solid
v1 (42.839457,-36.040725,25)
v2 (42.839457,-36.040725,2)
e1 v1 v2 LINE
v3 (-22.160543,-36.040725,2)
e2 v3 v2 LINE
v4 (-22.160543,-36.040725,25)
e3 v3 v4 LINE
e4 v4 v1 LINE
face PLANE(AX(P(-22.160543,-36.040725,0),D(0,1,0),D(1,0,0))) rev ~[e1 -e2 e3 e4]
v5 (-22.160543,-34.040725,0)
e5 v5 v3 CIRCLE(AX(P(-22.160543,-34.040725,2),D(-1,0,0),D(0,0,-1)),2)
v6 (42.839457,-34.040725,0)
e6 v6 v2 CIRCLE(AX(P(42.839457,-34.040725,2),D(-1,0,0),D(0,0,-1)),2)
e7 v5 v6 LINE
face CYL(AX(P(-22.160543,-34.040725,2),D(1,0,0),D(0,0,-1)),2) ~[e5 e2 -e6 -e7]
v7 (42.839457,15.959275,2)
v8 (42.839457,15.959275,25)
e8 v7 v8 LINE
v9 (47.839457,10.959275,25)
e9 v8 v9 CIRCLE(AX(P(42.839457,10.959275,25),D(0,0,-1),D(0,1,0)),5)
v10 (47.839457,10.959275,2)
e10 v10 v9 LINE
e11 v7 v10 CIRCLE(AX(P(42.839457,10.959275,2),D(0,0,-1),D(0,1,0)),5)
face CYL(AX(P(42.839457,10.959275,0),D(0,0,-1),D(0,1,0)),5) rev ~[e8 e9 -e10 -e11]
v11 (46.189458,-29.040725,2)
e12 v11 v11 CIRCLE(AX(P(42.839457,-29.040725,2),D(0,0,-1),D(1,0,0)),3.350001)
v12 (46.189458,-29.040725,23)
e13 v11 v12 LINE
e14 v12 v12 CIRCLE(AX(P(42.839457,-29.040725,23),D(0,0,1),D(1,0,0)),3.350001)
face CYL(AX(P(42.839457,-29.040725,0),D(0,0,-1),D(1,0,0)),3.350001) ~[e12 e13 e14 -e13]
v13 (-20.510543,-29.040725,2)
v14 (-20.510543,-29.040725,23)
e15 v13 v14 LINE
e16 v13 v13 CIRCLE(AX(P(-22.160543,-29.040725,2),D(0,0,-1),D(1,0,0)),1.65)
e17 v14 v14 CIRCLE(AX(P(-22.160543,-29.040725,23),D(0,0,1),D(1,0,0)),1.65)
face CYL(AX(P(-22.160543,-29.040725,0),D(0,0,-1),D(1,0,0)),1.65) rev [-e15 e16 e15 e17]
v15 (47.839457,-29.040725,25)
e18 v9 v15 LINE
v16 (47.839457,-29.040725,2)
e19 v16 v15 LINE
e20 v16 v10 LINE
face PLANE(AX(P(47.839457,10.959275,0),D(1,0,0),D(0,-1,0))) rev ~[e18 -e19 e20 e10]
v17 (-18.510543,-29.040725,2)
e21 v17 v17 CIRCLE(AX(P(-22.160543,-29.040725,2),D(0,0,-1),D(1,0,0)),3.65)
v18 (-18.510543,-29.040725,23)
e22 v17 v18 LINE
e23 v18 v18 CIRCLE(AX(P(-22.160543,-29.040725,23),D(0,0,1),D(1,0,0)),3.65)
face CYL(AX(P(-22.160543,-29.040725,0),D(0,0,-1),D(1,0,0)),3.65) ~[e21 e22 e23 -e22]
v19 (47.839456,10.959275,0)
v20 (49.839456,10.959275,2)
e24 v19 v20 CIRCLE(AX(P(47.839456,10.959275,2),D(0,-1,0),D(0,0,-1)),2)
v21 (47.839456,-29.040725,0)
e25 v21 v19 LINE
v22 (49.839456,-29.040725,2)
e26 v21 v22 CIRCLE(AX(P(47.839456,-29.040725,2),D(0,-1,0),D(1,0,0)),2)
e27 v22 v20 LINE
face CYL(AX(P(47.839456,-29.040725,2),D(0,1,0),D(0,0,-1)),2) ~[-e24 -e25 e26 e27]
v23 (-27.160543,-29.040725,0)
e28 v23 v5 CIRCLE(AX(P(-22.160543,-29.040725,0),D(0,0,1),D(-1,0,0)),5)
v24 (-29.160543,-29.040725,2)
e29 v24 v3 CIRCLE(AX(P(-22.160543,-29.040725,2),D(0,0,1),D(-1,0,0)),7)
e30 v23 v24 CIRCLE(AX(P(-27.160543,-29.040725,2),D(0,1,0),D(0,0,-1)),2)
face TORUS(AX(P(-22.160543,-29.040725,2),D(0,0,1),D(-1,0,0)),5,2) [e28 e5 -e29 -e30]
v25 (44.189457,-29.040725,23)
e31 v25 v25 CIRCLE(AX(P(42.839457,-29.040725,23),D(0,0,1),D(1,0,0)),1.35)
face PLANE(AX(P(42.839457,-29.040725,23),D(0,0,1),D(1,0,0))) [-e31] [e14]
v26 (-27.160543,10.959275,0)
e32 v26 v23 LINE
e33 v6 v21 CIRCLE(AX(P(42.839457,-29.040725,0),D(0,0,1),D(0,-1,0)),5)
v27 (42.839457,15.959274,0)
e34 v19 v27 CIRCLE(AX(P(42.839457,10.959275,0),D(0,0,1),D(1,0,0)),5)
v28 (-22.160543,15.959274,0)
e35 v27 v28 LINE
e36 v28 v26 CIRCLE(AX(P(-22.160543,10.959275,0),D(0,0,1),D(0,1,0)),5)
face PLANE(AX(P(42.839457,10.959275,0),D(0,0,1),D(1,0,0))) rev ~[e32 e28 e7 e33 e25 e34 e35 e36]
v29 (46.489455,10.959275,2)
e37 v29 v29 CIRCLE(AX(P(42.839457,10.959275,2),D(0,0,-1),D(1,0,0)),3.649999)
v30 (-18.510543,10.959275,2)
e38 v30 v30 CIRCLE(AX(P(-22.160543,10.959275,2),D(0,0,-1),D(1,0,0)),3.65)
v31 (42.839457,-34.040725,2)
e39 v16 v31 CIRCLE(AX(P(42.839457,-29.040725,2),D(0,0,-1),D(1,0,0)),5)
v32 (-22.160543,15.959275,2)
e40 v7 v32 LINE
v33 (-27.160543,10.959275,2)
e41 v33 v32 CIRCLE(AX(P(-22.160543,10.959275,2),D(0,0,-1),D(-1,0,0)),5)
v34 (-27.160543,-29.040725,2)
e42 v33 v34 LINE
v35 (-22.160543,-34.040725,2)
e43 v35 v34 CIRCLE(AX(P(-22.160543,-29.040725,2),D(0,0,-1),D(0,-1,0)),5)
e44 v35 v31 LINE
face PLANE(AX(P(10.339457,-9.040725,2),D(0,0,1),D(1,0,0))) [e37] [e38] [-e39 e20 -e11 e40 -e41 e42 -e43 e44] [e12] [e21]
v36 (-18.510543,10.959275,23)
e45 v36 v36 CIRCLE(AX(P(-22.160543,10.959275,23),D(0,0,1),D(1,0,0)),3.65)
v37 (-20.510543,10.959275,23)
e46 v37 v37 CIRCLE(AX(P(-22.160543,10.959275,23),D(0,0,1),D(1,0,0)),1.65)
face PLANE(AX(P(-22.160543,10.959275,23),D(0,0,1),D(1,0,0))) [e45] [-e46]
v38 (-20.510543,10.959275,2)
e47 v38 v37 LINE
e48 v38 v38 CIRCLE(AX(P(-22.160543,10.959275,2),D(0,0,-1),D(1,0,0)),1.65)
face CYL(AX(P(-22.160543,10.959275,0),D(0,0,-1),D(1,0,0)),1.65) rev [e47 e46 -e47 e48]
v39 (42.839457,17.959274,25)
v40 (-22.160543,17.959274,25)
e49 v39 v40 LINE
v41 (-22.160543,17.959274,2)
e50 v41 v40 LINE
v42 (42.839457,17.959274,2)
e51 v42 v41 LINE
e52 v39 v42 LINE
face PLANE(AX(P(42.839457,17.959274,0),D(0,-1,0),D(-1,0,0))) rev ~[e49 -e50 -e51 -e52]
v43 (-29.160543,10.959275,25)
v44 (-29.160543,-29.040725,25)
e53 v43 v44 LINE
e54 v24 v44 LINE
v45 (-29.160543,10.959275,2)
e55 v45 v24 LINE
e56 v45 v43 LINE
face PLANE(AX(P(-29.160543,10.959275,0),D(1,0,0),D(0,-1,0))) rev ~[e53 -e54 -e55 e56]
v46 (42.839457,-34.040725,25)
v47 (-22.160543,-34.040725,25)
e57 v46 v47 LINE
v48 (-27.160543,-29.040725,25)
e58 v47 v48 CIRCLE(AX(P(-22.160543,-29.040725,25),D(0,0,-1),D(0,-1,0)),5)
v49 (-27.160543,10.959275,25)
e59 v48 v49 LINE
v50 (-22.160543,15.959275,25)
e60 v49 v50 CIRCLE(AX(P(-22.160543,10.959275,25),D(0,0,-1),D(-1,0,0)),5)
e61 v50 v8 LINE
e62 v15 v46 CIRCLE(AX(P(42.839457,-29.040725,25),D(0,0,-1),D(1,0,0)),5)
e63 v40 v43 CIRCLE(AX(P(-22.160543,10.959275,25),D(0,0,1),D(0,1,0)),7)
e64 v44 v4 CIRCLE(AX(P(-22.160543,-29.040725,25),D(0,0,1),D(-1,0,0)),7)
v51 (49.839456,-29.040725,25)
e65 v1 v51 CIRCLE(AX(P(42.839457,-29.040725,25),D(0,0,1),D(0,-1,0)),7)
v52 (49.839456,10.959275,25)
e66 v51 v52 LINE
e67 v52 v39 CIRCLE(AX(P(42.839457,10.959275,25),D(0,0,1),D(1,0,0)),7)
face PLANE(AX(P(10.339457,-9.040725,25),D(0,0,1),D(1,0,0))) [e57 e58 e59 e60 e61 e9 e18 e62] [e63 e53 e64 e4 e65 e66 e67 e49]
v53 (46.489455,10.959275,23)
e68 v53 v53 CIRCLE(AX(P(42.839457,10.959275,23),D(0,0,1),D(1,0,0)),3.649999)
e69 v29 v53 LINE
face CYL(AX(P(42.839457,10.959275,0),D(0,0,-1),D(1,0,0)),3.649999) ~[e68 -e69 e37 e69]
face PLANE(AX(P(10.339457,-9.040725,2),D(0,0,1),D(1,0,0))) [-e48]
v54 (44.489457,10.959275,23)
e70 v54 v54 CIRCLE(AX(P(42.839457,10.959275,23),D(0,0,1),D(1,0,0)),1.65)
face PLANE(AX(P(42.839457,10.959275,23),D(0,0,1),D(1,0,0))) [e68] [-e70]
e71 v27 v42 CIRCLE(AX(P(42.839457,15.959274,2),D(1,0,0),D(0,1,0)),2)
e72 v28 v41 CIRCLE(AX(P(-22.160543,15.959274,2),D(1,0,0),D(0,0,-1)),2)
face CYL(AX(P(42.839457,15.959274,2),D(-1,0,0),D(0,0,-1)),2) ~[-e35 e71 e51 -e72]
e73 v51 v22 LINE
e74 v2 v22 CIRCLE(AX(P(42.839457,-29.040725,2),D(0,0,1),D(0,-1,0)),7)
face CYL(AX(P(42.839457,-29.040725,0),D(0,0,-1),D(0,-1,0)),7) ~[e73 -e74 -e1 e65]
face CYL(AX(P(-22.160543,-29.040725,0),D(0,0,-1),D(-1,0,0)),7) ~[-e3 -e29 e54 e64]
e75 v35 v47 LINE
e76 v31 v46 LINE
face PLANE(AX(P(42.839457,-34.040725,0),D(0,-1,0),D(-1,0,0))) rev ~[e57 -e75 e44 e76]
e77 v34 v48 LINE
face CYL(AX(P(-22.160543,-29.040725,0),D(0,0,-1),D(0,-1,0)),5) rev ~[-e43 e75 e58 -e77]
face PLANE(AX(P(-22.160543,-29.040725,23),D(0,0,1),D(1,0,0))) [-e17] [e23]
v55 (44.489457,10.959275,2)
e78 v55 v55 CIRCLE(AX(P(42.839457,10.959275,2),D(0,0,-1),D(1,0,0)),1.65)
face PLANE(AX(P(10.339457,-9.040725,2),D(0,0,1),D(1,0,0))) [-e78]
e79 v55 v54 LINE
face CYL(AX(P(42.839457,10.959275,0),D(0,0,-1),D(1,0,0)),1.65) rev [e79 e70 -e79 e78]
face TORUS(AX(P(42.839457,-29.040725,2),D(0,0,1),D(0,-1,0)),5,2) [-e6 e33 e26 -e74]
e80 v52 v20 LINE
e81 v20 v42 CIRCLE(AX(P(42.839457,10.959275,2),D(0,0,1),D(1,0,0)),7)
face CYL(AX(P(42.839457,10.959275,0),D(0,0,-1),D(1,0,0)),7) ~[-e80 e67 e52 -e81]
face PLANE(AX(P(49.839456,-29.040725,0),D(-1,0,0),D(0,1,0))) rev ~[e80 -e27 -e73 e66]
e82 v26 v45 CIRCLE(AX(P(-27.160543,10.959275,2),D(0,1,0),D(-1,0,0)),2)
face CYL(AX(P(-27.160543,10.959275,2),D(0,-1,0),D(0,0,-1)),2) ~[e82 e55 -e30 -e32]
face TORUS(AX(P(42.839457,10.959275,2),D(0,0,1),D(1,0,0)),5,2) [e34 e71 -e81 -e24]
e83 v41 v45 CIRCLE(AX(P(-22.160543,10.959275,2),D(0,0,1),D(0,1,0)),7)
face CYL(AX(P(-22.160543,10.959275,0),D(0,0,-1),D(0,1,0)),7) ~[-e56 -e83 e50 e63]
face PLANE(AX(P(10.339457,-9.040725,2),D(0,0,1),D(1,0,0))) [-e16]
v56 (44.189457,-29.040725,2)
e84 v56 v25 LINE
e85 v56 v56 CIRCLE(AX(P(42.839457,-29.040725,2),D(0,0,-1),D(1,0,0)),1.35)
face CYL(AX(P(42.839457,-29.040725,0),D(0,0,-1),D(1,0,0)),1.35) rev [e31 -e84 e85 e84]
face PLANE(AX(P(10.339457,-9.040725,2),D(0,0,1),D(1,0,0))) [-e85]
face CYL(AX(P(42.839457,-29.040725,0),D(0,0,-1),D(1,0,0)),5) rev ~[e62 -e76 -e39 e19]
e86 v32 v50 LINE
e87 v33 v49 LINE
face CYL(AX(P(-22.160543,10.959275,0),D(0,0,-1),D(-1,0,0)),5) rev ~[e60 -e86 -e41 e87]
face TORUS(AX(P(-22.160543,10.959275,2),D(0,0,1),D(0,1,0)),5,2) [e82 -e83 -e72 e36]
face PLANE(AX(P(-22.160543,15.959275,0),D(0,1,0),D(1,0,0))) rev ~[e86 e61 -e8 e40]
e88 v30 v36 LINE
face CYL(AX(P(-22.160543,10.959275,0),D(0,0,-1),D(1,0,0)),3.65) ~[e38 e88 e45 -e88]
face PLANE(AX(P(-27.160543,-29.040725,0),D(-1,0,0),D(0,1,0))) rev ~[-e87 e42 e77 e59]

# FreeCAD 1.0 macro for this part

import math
import FreeCAD as App
import Part
import Sketcher

V = App.Vector


def edges_at(feature, points):
    """Names of the edges that pass closest to the given points."""
    edges = feature.Shape.Edges
    near = lambda p: min(range(len(edges)), key=lambda i: edges[i].distToShape(Part.Vertex(*p))[0])
    return sorted({f"Edge{near(p) + 1}" for p in points})

doc = App.newDocument("Part")
body = doc.addObject("PartDesign::Body", "Body")

sketch1 = body.newObject("Sketcher::SketchObject", "Sketch")
sketch1.AttachmentSupport = (doc.getObject("XY_Plane"), [""])
sketch1.MapMode = "FlatFace"
sketch1.addGeometry([
    Part.LineSegment(V(42.839457, 17.959274, 0), V(-22.160543, 17.959274, 0)),
    Part.ArcOfCircle(Part.Circle(V(-22.160543, 10.959275, 0), V(0, 0, 1), 7), math.radians(90), math.radians(180)),
    Part.LineSegment(V(-29.160543, 10.959275, 0), V(-29.160543, -29.040725, 0)),
    Part.ArcOfCircle(Part.Circle(V(-22.160543, -29.040725, 0), V(0, 0, 1), 7), math.radians(180), math.radians(270)),
    Part.LineSegment(V(-22.160543, -36.040725, 0), V(42.839457, -36.040725, 0)),
    Part.ArcOfCircle(Part.Circle(V(42.839457, -29.040725, 0), V(0, 0, 1), 7), math.radians(-90), math.radians(0)),
    Part.LineSegment(V(49.839456, -29.040725, 0), V(49.839456, 10.959275, 0)),
    Part.ArcOfCircle(Part.Circle(V(42.839457, 10.959275, 0), V(0, 0, 1), 7), math.radians(0), math.radians(90)),
], False)
sketch1.addConstraint([
    Sketcher.Constraint("Tangent", 0, 2, 1, 1),
    Sketcher.Constraint("Tangent", 1, 2, 2, 1),
    Sketcher.Constraint("Tangent", 2, 2, 3, 1),
    Sketcher.Constraint("Tangent", 3, 2, 4, 1),
    Sketcher.Constraint("Tangent", 4, 2, 5, 1),
    Sketcher.Constraint("Tangent", 5, 2, 6, 1),
    Sketcher.Constraint("Tangent", 6, 2, 7, 1),
    Sketcher.Constraint("Tangent", 7, 2, 0, 1),
    Sketcher.Constraint("Horizontal", 0),
    Sketcher.Constraint("Vertical", 2),
    Sketcher.Constraint("Horizontal", 4),
    Sketcher.Constraint("Vertical", 6),
    Sketcher.Constraint("Equal", 1, 3),
    Sketcher.Constraint("Equal", 3, 5),
    Sketcher.Constraint("Equal", 5, 7),
    Sketcher.Constraint("Radius", 1, 7.0),
    Sketcher.Constraint("DistanceX", 0, 2, 0, 1, 65.0),
    Sketcher.Constraint("DistanceY", 2, 2, 2, 1, 40.0),
    Sketcher.Constraint("DistanceX", 1, 3, -1, 1, 22.160543),
    Sketcher.Constraint("DistanceY", -1, 1, 1, 3, 10.959275),
])
pad1 = body.newObject("PartDesign::Pad", "Pad")
pad1.Profile = sketch1
pad1.Length = 2

sketch2 = body.newObject("Sketcher::SketchObject", "Sketch001")
sketch2.AttachmentSupport = (doc.getObject("XY_Plane"), [""])
sketch2.MapMode = "FlatFace"
sketch2.addGeometry([
    Part.LineSegment(V(42.839457, 17.959274, 0), V(-22.160543, 17.959274, 0)),
    Part.ArcOfCircle(Part.Circle(V(-22.160543, 10.959275, 0), V(0, 0, 1), 7), math.radians(90), math.radians(180)),
    Part.LineSegment(V(-29.160543, 10.959275, 0), V(-29.160543, -29.040725, 0)),
    Part.ArcOfCircle(Part.Circle(V(-22.160543, -29.040725, 0), V(0, 0, 1), 7), math.radians(180), math.radians(270)),
    Part.LineSegment(V(-22.160543, -36.040725, 0), V(42.839457, -36.040725, 0)),
    Part.ArcOfCircle(Part.Circle(V(42.839457, -29.040725, 0), V(0, 0, 1), 7), math.radians(-90), math.radians(0)),
    Part.LineSegment(V(49.839456, -29.040725, 0), V(49.839456, 10.959275, 0)),
    Part.ArcOfCircle(Part.Circle(V(42.839457, 10.959275, 0), V(0, 0, 1), 7), math.radians(0), math.radians(90)),
    Part.LineSegment(V(-27.160543, -29.040725, 0), V(-27.160543, 10.959275, 0)),
    Part.ArcOfCircle(Part.Circle(V(-22.160543, 10.959275, 0), V(0, 0, 1), 5), math.radians(90), math.radians(180)),
    Part.LineSegment(V(-22.160543, 15.959275, 0), V(42.839457, 15.959275, 0)),
    Part.ArcOfCircle(Part.Circle(V(42.839457, 10.959275, 0), V(0, 0, 1), 5), math.radians(0), math.radians(90)),
    Part.LineSegment(V(47.839457, 10.959275, 0), V(47.839457, -29.040725, 0)),
    Part.ArcOfCircle(Part.Circle(V(42.839457, -29.040725, 0), V(0, 0, 1), 5), math.radians(-90), math.radians(0)),
    Part.LineSegment(V(42.839457, -34.040725, 0), V(-22.160543, -34.040725, 0)),
    Part.ArcOfCircle(Part.Circle(V(-22.160543, -29.040725, 0), V(0, 0, 1), 5), math.radians(180), math.radians(270)),
], False)
sketch2.addConstraint([
    Sketcher.Constraint("Tangent", 0, 2, 1, 1),
    Sketcher.Constraint("Tangent", 1, 2, 2, 1),
    Sketcher.Constraint("Tangent", 2, 2, 3, 1),
    Sketcher.Constraint("Tangent", 3, 2, 4, 1),
    Sketcher.Constraint("Tangent", 4, 2, 5, 1),
    Sketcher.Constraint("Tangent", 5, 2, 6, 1),
    Sketcher.Constraint("Tangent", 6, 2, 7, 1),
    Sketcher.Constraint("Tangent", 7, 2, 0, 1),
    Sketcher.Constraint("Tangent", 8, 2, 9, 2),
    Sketcher.Constraint("Tangent", 9, 1, 10, 1),
    Sketcher.Constraint("Tangent", 10, 2, 11, 2),
    Sketcher.Constraint("Tangent", 11, 1, 12, 1),
    Sketcher.Constraint("Tangent", 12, 2, 13, 2),
    Sketcher.Constraint("Tangent", 13, 1, 14, 1),
    Sketcher.Constraint("Tangent", 14, 2, 15, 2),
    Sketcher.Constraint("Tangent", 15, 1, 8, 1),
    Sketcher.Constraint("Horizontal", 0),
    Sketcher.Constraint("Vertical", 2),
    Sketcher.Constraint("Horizontal", 4),
    Sketcher.Constraint("Vertical", 6),
    Sketcher.Constraint("Vertical", 8),
    Sketcher.Constraint("Horizontal", 10),
    Sketcher.Constraint("Vertical", 12),
    Sketcher.Constraint("Horizontal", 14),
    Sketcher.Constraint("Coincident", 9, 3, 1, 3),
    Sketcher.Constraint("Coincident", 11, 3, 7, 3),
    Sketcher.Constraint("Coincident", 13, 3, 5, 3),
    Sketcher.Constraint("Equal", 1, 3),
    Sketcher.Constraint("Equal", 3, 5),
    Sketcher.Constraint("Equal", 5, 7),
    Sketcher.Constraint("Equal", 13, 15),
    Sketcher.Constraint("Radius", 1, 7.0),
    Sketcher.Constraint("Radius", 9, 5.0),
    Sketcher.Constraint("DistanceX", 0, 2, 0, 1, 65.0),
    Sketcher.Constraint("DistanceY", 2, 2, 2, 1, 40.0),
    Sketcher.Constraint("DistanceX", 1, 3, -1, 1, 22.160543),
    Sketcher.Constraint("DistanceY", -1, 1, 1, 3, 10.959275),
])
pad2 = body.newObject("PartDesign::Pad", "Pad001")
pad2.Profile = sketch2
pad2.Length = 25

sketch3 = body.newObject("Sketcher::SketchObject", "Sketch002")
sketch3.AttachmentSupport = (doc.getObject("XY_Plane"), [""])
sketch3.MapMode = "FlatFace"
sketch3.addGeometry([
    Part.Circle(V(42.839457, 10.959275, 0), V(0, 0, 1), 3.649999),
    Part.Circle(V(42.839457, 10.959275, 0), V(0, 0, 1), 1.65),
    Part.Circle(V(42.839457, -29.040725, 0), V(0, 0, 1), 3.350001),
    Part.Circle(V(42.839457, -29.040725, 0), V(0, 0, 1), 1.35),
    Part.Circle(V(-22.160543, 10.959275, 0), V(0, 0, 1), 3.65),
    Part.Circle(V(-22.160543, 10.959275, 0), V(0, 0, 1), 1.65),
    Part.Circle(V(-22.160543, -29.040725, 0), V(0, 0, 1), 3.65),
    Part.Circle(V(-22.160543, -29.040725, 0), V(0, 0, 1), 1.65),
], False)
sketch3.addConstraint([
    Sketcher.Constraint("Coincident", 1, 3, 0, 3),
    Sketcher.Constraint("Coincident", 3, 3, 2, 3),
    Sketcher.Constraint("Coincident", 5, 3, 4, 3),
    Sketcher.Constraint("Coincident", 7, 3, 6, 3),
    Sketcher.Constraint("Equal", 0, 4),
    Sketcher.Constraint("Equal", 1, 5),
    Sketcher.Constraint("Equal", 4, 6),
    Sketcher.Constraint("Equal", 5, 7),
    Sketcher.Constraint("Horizontal", 1, 3, 4, 3),
    Sketcher.Constraint("Horizontal", 3, 3, 6, 3),
    Sketcher.Constraint("Vertical", 1, 3, 2, 3),
    Sketcher.Constraint("Vertical", 5, 3, 6, 3),
    Sketcher.Constraint("Diameter", 1, 3.3),
    Sketcher.Constraint("Diameter", 3, 2.7),
    Sketcher.Constraint("Diameter", 4, 7.3),
    Sketcher.Constraint("DistanceY", 2, 3, 0, 3, 40.0),
    Sketcher.Constraint("DistanceX", 4, 3, 0, 3, 65.0),
    Sketcher.Constraint("Diameter", 2, 6.700002),
    Sketcher.Constraint("DistanceX", -1, 1, 0, 3, 42.839457),
    Sketcher.Constraint("DistanceY", -1, 1, 0, 3, 10.959275),
])
pad3 = body.newObject("PartDesign::Pad", "Pad002")
pad3.Profile = sketch3
pad3.Length = 23
doc.recompute()

fillet = body.newObject("PartDesign::Fillet", "Fillet")
fillet.Base = (pad3, edges_at(pad3, [(10.339, -36.041, 0)]))
fillet.Radius = 2

doc.recompute()
